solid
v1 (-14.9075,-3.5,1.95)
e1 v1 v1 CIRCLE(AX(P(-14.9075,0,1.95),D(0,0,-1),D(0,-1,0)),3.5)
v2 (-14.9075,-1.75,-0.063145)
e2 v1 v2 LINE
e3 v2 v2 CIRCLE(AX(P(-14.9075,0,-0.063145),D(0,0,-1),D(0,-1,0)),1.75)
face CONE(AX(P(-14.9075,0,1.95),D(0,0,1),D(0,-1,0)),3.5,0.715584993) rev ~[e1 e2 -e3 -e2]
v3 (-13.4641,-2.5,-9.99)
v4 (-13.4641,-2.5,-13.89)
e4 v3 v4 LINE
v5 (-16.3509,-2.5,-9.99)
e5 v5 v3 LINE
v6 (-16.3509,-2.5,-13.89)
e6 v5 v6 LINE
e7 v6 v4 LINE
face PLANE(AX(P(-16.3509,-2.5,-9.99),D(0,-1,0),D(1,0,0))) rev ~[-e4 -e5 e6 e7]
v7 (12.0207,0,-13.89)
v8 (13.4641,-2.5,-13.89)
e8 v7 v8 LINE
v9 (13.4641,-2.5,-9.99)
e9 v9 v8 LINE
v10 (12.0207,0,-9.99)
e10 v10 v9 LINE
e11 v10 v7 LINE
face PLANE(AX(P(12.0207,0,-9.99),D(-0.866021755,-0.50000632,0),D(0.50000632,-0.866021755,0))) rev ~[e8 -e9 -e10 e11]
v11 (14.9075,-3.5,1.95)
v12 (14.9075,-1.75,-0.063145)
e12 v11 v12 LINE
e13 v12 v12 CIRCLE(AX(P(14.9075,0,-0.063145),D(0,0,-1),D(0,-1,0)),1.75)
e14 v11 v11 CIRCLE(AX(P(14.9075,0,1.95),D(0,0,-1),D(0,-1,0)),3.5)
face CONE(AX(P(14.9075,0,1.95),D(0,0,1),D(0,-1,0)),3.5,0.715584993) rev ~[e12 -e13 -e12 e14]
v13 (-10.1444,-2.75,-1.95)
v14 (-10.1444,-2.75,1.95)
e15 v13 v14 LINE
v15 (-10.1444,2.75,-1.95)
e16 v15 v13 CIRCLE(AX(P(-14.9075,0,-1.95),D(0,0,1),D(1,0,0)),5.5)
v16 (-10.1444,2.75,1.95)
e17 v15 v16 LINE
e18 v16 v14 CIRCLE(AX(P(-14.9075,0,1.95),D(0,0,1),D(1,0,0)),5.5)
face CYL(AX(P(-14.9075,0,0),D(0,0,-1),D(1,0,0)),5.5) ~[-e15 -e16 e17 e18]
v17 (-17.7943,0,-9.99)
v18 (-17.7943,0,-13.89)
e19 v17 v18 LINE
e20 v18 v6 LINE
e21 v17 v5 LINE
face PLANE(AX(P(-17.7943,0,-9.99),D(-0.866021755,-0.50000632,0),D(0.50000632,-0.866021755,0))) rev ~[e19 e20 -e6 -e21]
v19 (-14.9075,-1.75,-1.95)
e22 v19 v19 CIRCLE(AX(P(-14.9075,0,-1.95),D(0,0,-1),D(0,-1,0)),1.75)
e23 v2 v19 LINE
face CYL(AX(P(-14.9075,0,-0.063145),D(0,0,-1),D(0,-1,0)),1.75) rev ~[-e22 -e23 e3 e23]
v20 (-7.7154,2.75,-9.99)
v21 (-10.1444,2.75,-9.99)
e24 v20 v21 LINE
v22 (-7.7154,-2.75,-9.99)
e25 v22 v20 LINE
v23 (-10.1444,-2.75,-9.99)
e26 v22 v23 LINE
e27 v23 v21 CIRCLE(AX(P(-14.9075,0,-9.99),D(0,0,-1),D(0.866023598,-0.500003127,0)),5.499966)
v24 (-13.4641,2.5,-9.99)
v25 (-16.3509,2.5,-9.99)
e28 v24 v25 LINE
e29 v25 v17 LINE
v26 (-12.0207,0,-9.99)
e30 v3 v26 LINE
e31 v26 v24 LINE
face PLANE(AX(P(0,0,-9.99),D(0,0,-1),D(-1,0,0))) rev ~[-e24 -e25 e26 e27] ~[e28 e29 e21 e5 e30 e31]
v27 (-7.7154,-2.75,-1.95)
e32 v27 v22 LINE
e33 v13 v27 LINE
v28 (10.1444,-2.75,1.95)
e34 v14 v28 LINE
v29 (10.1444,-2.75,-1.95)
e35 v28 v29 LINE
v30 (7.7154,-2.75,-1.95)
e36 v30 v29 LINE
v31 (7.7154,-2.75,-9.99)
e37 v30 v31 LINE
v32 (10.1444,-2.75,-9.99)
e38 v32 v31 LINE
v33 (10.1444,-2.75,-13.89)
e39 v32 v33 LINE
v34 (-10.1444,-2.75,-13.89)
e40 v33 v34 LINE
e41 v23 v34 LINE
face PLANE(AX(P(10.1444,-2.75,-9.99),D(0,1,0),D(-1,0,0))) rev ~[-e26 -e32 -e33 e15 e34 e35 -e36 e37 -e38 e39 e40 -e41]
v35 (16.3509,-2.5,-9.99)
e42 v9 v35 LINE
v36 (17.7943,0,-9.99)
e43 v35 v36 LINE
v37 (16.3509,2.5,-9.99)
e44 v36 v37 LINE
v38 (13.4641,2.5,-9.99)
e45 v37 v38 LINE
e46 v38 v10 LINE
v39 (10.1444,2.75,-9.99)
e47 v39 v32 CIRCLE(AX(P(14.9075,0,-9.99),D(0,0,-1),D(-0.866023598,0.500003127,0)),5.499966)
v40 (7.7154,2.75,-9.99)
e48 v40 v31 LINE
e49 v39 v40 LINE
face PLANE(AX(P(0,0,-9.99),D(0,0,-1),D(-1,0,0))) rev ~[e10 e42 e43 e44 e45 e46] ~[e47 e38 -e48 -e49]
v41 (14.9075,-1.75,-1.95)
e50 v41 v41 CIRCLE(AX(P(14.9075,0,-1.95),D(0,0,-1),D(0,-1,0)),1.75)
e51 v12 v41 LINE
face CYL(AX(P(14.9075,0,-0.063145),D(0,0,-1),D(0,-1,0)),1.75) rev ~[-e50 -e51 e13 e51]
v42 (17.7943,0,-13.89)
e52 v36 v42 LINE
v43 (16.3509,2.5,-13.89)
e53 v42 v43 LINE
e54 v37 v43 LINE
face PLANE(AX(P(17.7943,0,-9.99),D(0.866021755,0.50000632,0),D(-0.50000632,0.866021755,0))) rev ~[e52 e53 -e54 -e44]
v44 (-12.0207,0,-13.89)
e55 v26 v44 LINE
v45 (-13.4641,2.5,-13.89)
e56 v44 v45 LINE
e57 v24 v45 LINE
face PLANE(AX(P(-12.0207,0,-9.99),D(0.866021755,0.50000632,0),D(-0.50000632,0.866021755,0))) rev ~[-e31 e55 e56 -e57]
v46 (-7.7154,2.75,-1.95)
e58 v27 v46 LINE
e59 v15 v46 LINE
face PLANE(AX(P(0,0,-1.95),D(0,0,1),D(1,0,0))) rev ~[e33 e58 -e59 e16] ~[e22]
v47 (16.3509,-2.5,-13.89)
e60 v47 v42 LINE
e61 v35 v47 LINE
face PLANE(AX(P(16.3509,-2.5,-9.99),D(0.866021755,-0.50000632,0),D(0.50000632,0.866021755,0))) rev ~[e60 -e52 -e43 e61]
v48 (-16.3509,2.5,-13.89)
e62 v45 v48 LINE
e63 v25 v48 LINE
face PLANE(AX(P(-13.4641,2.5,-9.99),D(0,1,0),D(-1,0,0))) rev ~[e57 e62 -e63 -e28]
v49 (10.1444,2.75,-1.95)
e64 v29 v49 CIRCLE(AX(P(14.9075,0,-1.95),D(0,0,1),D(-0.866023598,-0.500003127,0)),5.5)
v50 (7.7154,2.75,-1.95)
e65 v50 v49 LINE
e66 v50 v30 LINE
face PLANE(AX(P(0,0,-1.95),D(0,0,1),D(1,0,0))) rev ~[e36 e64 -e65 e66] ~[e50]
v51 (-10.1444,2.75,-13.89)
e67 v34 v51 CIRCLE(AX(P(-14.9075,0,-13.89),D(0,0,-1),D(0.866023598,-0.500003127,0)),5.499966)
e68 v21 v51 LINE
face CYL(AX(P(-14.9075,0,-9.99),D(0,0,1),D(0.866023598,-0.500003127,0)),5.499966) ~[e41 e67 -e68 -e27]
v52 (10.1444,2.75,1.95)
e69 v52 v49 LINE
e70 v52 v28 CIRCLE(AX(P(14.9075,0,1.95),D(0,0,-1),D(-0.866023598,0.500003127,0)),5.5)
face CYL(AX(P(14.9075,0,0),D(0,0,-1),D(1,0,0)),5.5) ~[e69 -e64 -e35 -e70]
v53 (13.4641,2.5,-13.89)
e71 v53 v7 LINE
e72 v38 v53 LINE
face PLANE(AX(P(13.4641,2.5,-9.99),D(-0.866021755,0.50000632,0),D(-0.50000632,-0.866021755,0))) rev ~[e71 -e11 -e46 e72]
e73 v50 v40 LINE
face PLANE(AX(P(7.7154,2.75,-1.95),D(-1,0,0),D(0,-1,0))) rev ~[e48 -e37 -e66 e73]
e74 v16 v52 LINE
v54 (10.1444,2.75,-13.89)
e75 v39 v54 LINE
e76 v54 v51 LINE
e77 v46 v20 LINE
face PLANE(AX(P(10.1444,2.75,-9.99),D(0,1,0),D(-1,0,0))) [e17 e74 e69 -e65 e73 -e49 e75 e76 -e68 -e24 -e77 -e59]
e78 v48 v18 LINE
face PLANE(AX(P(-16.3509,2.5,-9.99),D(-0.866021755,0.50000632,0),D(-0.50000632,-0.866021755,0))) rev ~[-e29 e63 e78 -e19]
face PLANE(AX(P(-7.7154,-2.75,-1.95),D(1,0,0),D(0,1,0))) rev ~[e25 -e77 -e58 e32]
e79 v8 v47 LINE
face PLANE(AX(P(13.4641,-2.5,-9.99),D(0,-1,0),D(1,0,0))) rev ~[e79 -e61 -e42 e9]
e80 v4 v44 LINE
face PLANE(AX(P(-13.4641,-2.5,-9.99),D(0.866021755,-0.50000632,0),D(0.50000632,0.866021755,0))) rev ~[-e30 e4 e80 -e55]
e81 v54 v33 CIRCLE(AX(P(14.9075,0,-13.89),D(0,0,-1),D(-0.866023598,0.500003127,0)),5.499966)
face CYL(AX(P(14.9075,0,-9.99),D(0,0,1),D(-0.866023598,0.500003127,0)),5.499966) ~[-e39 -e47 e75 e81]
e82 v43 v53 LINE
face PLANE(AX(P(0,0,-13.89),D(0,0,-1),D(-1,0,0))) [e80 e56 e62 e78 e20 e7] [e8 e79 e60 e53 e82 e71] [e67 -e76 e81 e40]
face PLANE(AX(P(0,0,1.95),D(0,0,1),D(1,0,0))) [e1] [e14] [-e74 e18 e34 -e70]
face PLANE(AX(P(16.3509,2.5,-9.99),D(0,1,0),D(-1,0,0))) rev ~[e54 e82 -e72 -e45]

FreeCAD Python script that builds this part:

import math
import FreeCAD as App
import Part
import Sketcher
Q = App.Units.Quantity

doc = App.newDocument("Part")
body = doc.addObject("PartDesign::Body", "Body")

sketch1 = body.newObject("Sketcher::SketchObject", "Sketch")
sketch1.AttachmentSupport = (doc.getObject("XY_Plane"), [""])
sketch1.MapMode = "FlatFace"
sketch1.addGeometry(Part.LineSegment(App.Vector(10, 3, 0), App.Vector(-10, 3, 0)), False)
sketch1.addGeometry(Part.ArcOfCircle(Part.Circle(App.Vector(-15, 0, 0), App.Vector(0, 0, 1), 6), math.radians(30), math.radians(330)), False)
sketch1.addGeometry(Part.LineSegment(App.Vector(-10, -3, 0), App.Vector(10, -3, 0)), False)
sketch1.addGeometry(Part.ArcOfCircle(Part.Circle(App.Vector(15, 0, 0), App.Vector(0, 0, 1), 6), math.radians(-150), math.radians(150)), False)
sketch1.addConstraint(Sketcher.Constraint("Coincident", 0, 2, 1, 1))
sketch1.addConstraint(Sketcher.Constraint("Coincident", 1, 2, 2, 1))
sketch1.addConstraint(Sketcher.Constraint("Coincident", 2, 2, 3, 1))
sketch1.addConstraint(Sketcher.Constraint("Coincident", 3, 2, 0, 1))
sketch1.addConstraint(Sketcher.Constraint("Horizontal", 0))
sketch1.addConstraint(Sketcher.Constraint("Horizontal", 2))
sketch1.addConstraint(Sketcher.Constraint("Equal", 1, 3))
sketch1.addConstraint(Sketcher.Constraint("Symmetric", 1, 3, 3, 3, -1, 1))
sketch1.addConstraint(Sketcher.Constraint("Symmetric", 0, 2, 1, 2, -1))
sketch1.addConstraint(Sketcher.Constraint("Radius", 1, Q("5.5 mm")))
sketch1.addConstraint(Sketcher.Constraint("DistanceY", -1, 1, 0, 2, Q("2.75 mm")))
sketch1.addConstraint(Sketcher.Constraint("DistanceX", 1, 3, 3, 3, Q("29.815 mm")))
pad1 = body.newObject("PartDesign::Pad", "Pad")
pad1.Profile = sketch1
pad1.Length = 3.9
pad1.Midplane = True

sketch2 = body.newObject("Sketcher::SketchObject", "Sketch001")
sketch2.AttachmentSupport = (doc.getObject("XY_Plane"), [""])
sketch2.MapMode = "FlatFace"
sketch2.AttachmentOffset = App.Placement(App.Vector(0, 0, -1.95), App.Rotation())
sketch2.addGeometry(Part.LineSegment(App.Vector(8, 3, 0), App.Vector(8, -3, 0)), False)
sketch2.addGeometry(Part.LineSegment(App.Vector(8, -3, 0), App.Vector(-8, -3, 0)), False)
sketch2.addGeometry(Part.LineSegment(App.Vector(-8, -3, 0), App.Vector(-8, 3, 0)), False)
sketch2.addGeometry(Part.LineSegment(App.Vector(-8, 3, 0), App.Vector(8, 3, 0)), False)
sketch2.addConstraint(Sketcher.Constraint("Coincident", 0, 2, 1, 1))
sketch2.addConstraint(Sketcher.Constraint("Coincident", 1, 2, 2, 1))
sketch2.addConstraint(Sketcher.Constraint("Coincident", 2, 2, 3, 1))
sketch2.addConstraint(Sketcher.Constraint("Coincident", 3, 2, 0, 1))
sketch2.addConstraint(Sketcher.Constraint("Vertical", 0))
sketch2.addConstraint(Sketcher.Constraint("Horizontal", 1))
sketch2.addConstraint(Sketcher.Constraint("Vertical", 2))
sketch2.addConstraint(Sketcher.Constraint("Horizontal", 3))
sketch2.addConstraint(Sketcher.Constraint("Symmetric", 0, 2, 2, 2, -1, 1))
sketch2.addConstraint(Sketcher.Constraint("DistanceX", 1, 2, 1, 1, Q("15.4308 mm")))
sketch2.addConstraint(Sketcher.Constraint("DistanceY", 0, 2, 0, 1, Q("5.5 mm")))
pad2 = body.newObject("PartDesign::Pad", "Pad001")
pad2.Profile = sketch2
pad2.Length = 8.04
pad2.Reversed = True

sketch3 = body.newObject("Sketcher::SketchObject", "Sketch002")
sketch3.AttachmentSupport = (doc.getObject("XY_Plane"), [""])
sketch3.MapMode = "FlatFace"
sketch3.AttachmentOffset = App.Placement(App.Vector(0, 0, 1.95), App.Rotation())
sketch3.addGeometry(Part.Circle(App.Vector(14.9, 0, 0), App.Vector(0, 0, 1), 1.8), False)
sketch3.addConstraint(Sketcher.Constraint("PointOnObject", 0, 3, -1))
sketch3.addConstraint(Sketcher.Constraint("Diameter", 0, Q("3.5 mm")))
sketch3.addConstraint(Sketcher.Constraint("DistanceX", -1, 1, 0, 3, Q("14.9075 mm")))
doc.recompute()
hole = body.newObject("PartDesign::Hole", "Hole")
hole.Profile = sketch3
hole.ThreadType = "None"
hole.Diameter = 3.5
hole.DepthType = "ThroughAll"
hole.HoleCutType = "Countersink"
hole.HoleCutDiameter = 7
hole.HoleCutCountersinkAngle = 82

sketch4 = body.newObject("Sketcher::SketchObject", "Sketch003")
sketch4.AttachmentSupport = (doc.getObject("XY_Plane"), [""])
sketch4.MapMode = "FlatFace"
sketch4.AttachmentOffset = App.Placement(App.Vector(0, 0, 1.95), App.Rotation())
sketch4.addGeometry(Part.Circle(App.Vector(-14.9, 0, 0), App.Vector(0, 0, 1), 1.8), False)
sketch4.addConstraint(Sketcher.Constraint("PointOnObject", 0, 3, -1))
sketch4.addConstraint(Sketcher.Constraint("Diameter", 0, Q("3.5 mm")))
sketch4.addConstraint(Sketcher.Constraint("DistanceX", 0, 3, -1, 1, Q("14.9075 mm")))
doc.recompute()
hole2 = body.newObject("PartDesign::Hole", "Hole001")
hole2.Profile = sketch4
hole2.ThreadType = "None"
hole2.Diameter = 3.5
hole2.DepthType = "ThroughAll"
hole2.HoleCutType = "Countersink"
hole2.HoleCutDiameter = 7
hole2.HoleCutCountersinkAngle = 82

sketch5 = body.newObject("Sketcher::SketchObject", "Sketch004")
sketch5.AttachmentSupport = (doc.getObject("XY_Plane"), [""])
sketch5.MapMode = "FlatFace"
sketch5.AttachmentOffset = App.Placement(App.Vector(0, 0, -9.99), App.Rotation())
sketch5.addGeometry(Part.ArcOfCircle(Part.Circle(App.Vector(14.9, 0, 0), App.Vector(0, 0, 1), 5.5), math.radians(-150), math.radians(150)), False)
sketch5.addGeometry(Part.LineSegment(App.Vector(10.1, -2.8, 0), App.Vector(-10.1, -2.8, 0)), False)
sketch5.addGeometry(Part.ArcOfCircle(Part.Circle(App.Vector(-14.9, 0, 0), App.Vector(0, 0, 1), 5.5), math.radians(30), math.radians(330)), False)
sketch5.addGeometry(Part.LineSegment(App.Vector(-10.1, 2.8, 0), App.Vector(10.1, 2.8, 0)), False)
sketch5.addGeometry(Part.LineSegment(App.Vector(16.4, 2.5, 0), App.Vector(13.5, 2.5, 0)), False)
sketch5.addGeometry(Part.LineSegment(App.Vector(13.5, 2.5, 0), App.Vector(12, 0, 0)), False)
sketch5.addGeometry(Part.LineSegment(App.Vector(12, 0, 0), App.Vector(13.5, -2.5, 0)), False)
sketch5.addGeometry(Part.LineSegment(App.Vector(13.5, -2.5, 0), App.Vector(16.4, -2.5, 0)), False)
sketch5.addGeometry(Part.LineSegment(App.Vector(16.4, -2.5, 0), App.Vector(17.8, 0, 0)), False)
sketch5.addGeometry(Part.LineSegment(App.Vector(17.8, 0, 0), App.Vector(16.4, 2.5, 0)), False)
sketch5.addGeometry(Part.LineSegment(App.Vector(-16.4, 2.5, 0), App.Vector(-17.8, 0, 0)), False)
sketch5.addGeometry(Part.LineSegment(App.Vector(-17.8, 0, 0), App.Vector(-16.4, -2.5, 0)), False)
sketch5.addGeometry(Part.LineSegment(App.Vector(-16.4, -2.5, 0), App.Vector(-13.5, -2.5, 0)), False)
sketch5.addGeometry(Part.LineSegment(App.Vector(-13.5, -2.5, 0), App.Vector(-12, 0, 0)), False)
sketch5.addGeometry(Part.LineSegment(App.Vector(-12, 0, 0), App.Vector(-13.5, 2.5, 0)), False)
sketch5.addGeometry(Part.LineSegment(App.Vector(-13.5, 2.5, 0), App.Vector(-16.4, 2.5, 0)), False)
sketch5.addConstraint(Sketcher.Constraint("Coincident", 0, 1, 1, 1))
sketch5.addConstraint(Sketcher.Constraint("Coincident", 1, 2, 2, 2))
sketch5.addConstraint(Sketcher.Constraint("Coincident", 2, 1, 3, 1))
sketch5.addConstraint(Sketcher.Constraint("Coincident", 3, 2, 0, 2))
sketch5.addConstraint(Sketcher.Constraint("Coincident", 4, 2, 5, 1))
sketch5.addConstraint(Sketcher.Constraint("Coincident", 5, 2, 6, 1))
sketch5.addConstraint(Sketcher.Constraint("Coincident", 6, 2, 7, 1))
sketch5.addConstraint(Sketcher.Constraint("Coincident", 7, 2, 8, 1))
sketch5.addConstraint(Sketcher.Constraint("Coincident", 8, 2, 9, 1))
sketch5.addConstraint(Sketcher.Constraint("Coincident", 9, 2, 4, 1))
sketch5.addConstraint(Sketcher.Constraint("Coincident", 10, 2, 11, 1))
sketch5.addConstraint(Sketcher.Constraint("Coincident", 11, 2, 12, 1))
sketch5.addConstraint(Sketcher.Constraint("Coincident", 12, 2, 13, 1))
sketch5.addConstraint(Sketcher.Constraint("Coincident", 13, 2, 14, 1))
sketch5.addConstraint(Sketcher.Constraint("Coincident", 14, 2, 15, 1))
sketch5.addConstraint(Sketcher.Constraint("Coincident", 15, 2, 10, 1))
sketch5.addConstraint(Sketcher.Constraint("Horizontal", 1))
sketch5.addConstraint(Sketcher.Constraint("Horizontal", 3))
sketch5.addConstraint(Sketcher.Constraint("Horizontal", 4))
sketch5.addConstraint(Sketcher.Constraint("Horizontal", 7))
sketch5.addConstraint(Sketcher.Constraint("Horizontal", 12))
sketch5.addConstraint(Sketcher.Constraint("Horizontal", 15))
sketch5.addConstraint(Sketcher.Constraint("Equal", 0, 2))
sketch5.addConstraint(Sketcher.Constraint("Symmetric", 0, 3, 2, 3, -1, 1))
sketch5.addConstraint(Sketcher.Constraint("Symmetric", 8, 2, 10, 2, -1, 1))
sketch5.addConstraint(Sketcher.Constraint("Symmetric", 9, 2, 11, 2, -1, 1))
sketch5.addConstraint(Sketcher.Constraint("Symmetric", 5, 2, 13, 2, -1, 1))
sketch5.addConstraint(Sketcher.Constraint("Symmetric", 6, 2, 14, 2, -1, 1))
sketch5.addConstraint(Sketcher.Constraint("Symmetric", 7, 2, 11, 2, -2))
sketch5.addConstraint(Sketcher.Constraint("Symmetric", 1, 2, 2, 1, -1))
sketch5.addConstraint(Sketcher.Constraint("PointOnObject", 5, 2, -1))
sketch5.addConstraint(Sketcher.Constraint("PointOnObject", 8, 2, -1))
sketch5.addConstraint(Sketcher.Constraint("Parallel", 5, 8))
sketch5.addConstraint(Sketcher.Constraint("Parallel", 6, 9))
sketch5.addConstraint(Sketcher.Constraint("Parallel", 8, 10))
sketch5.addConstraint(Sketcher.Constraint("Parallel", 10, 13))
sketch5.addConstraint(Sketcher.Constraint("Radius", 0, Q("5.5 mm")))
sketch5.addConstraint(Sketcher.Constraint("Angle", 5, Q("-120.0004 deg")))
sketch5.addConstraint(Sketcher.Constraint("DistanceY", 6, 2, 4, 2, Q("5 mm")))
sketch5.addConstraint(Sketcher.Constraint("DistanceY", 1, 2, 2, 1, Q("5.5 mm")))
sketch5.addConstraint(Sketcher.Constraint("DistanceX", 10, 2, 1, 2, Q("7.65 mm")))
sketch5.addConstraint(Sketcher.Constraint("DistanceX", 1, 2, 1, 1, Q("20.2888 mm")))
sketch5.addConstraint(Sketcher.Constraint("DistanceX", 4, 2, 4, 1, Q("2.8868 mm")))
pad3 = body.newObject("PartDesign::Pad", "Pad002")
pad3.Profile = sketch5
pad3.Length = 3.9
pad3.Reversed = True

doc.recompute()
